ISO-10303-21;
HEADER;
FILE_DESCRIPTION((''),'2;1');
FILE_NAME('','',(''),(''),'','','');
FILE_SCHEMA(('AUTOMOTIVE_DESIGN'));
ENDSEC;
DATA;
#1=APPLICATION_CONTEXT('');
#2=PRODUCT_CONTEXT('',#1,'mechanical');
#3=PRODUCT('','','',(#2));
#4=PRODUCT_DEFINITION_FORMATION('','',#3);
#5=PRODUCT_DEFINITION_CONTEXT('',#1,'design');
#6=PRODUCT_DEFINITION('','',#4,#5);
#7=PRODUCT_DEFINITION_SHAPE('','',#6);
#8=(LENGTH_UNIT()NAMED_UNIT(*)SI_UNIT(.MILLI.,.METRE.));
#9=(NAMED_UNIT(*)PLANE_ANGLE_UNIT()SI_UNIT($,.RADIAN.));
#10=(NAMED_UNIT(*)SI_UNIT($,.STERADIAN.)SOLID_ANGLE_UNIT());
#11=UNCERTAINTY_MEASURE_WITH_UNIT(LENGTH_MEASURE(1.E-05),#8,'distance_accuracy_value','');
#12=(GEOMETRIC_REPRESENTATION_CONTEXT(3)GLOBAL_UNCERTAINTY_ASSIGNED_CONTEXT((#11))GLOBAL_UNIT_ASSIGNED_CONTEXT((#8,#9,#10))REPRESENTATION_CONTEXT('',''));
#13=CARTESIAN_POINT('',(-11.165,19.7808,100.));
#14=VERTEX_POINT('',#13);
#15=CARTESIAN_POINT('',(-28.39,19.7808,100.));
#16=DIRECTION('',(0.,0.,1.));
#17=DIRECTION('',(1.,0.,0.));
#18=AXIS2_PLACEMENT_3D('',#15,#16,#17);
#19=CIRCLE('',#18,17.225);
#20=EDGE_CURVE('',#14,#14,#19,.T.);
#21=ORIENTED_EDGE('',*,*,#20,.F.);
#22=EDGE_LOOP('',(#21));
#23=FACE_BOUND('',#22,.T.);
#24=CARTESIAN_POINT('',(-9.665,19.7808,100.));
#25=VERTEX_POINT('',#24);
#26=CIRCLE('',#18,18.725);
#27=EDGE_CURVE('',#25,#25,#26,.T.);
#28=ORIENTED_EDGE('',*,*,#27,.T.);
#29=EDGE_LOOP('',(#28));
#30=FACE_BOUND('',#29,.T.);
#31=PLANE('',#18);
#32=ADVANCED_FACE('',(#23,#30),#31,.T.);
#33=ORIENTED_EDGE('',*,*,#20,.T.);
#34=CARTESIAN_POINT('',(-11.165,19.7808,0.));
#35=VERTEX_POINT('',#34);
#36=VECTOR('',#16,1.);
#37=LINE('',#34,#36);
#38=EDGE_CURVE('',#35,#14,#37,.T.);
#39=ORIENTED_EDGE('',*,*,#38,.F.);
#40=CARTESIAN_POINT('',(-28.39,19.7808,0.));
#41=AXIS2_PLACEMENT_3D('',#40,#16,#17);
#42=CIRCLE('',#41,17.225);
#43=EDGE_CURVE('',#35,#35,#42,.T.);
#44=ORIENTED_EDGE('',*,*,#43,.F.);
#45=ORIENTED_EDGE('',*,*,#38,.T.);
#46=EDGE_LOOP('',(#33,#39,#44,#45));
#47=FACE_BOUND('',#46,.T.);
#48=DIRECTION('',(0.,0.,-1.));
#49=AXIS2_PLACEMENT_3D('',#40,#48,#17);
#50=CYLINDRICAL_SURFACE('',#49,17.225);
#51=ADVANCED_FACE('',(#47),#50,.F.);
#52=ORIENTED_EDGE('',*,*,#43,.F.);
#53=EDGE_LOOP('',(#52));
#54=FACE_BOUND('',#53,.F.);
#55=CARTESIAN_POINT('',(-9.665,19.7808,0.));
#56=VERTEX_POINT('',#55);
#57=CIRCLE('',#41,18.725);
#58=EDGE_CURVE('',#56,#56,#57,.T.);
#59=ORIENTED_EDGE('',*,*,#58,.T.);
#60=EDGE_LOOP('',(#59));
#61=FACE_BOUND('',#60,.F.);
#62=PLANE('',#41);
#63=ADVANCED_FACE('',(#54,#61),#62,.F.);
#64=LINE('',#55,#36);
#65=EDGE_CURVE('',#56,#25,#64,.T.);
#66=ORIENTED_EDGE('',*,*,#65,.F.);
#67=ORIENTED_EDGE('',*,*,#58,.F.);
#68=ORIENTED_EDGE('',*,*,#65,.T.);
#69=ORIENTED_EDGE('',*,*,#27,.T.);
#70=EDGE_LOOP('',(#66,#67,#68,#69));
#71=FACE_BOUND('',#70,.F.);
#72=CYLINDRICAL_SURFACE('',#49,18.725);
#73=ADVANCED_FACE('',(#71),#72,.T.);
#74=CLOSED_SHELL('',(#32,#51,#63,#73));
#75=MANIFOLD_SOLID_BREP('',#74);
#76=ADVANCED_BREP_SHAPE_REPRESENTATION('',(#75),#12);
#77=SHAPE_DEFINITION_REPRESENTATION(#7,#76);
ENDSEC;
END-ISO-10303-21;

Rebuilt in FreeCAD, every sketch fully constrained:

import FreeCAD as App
import Part
import Sketcher
from FreeCAD import Vector
Q = App.Units.Quantity

doc = App.newDocument("Part")
body = doc.addObject("PartDesign::Body", "Body")

# Sketch on XY plane
sketch1 = doc.addObject("Sketcher::SketchObject", "Sketch")
body.addObject(sketch1)
sketch1.AttachmentSupport = (doc.XY_Plane, [""])
sketch1.MapMode = "FlatFace"
sketch1.addGeometry(Part.Circle(Vector(-28, 20, 0), Vector(0, 0, 1), 19), False)
sketch1.addGeometry(Part.Circle(Vector(-28, 20, 0), Vector(0, 0, 1), 17), False)
sketch1.addConstraint(Sketcher.Constraint("Coincident", 1, 3, 0, 3))
sketch1.addConstraint(Sketcher.Constraint("Diameter", 0, Q("1.4744 in")))
sketch1.addConstraint(Sketcher.Constraint("Diameter", 1, Q("1.3563 in")))
sketch1.addConstraint(Sketcher.Constraint("DistanceX", 0, 3, -1, 1, Q("28.39 mm")))
sketch1.addConstraint(Sketcher.Constraint("DistanceY", -1, 1, 0, 3, Q("19.7808 mm")))
pad1 = doc.addObject("PartDesign::Pad", "Pad")
body.addObject(pad1)
pad1.Profile = sketch1
pad1.Length = Q("3.9370079 in")

doc.recompute()
